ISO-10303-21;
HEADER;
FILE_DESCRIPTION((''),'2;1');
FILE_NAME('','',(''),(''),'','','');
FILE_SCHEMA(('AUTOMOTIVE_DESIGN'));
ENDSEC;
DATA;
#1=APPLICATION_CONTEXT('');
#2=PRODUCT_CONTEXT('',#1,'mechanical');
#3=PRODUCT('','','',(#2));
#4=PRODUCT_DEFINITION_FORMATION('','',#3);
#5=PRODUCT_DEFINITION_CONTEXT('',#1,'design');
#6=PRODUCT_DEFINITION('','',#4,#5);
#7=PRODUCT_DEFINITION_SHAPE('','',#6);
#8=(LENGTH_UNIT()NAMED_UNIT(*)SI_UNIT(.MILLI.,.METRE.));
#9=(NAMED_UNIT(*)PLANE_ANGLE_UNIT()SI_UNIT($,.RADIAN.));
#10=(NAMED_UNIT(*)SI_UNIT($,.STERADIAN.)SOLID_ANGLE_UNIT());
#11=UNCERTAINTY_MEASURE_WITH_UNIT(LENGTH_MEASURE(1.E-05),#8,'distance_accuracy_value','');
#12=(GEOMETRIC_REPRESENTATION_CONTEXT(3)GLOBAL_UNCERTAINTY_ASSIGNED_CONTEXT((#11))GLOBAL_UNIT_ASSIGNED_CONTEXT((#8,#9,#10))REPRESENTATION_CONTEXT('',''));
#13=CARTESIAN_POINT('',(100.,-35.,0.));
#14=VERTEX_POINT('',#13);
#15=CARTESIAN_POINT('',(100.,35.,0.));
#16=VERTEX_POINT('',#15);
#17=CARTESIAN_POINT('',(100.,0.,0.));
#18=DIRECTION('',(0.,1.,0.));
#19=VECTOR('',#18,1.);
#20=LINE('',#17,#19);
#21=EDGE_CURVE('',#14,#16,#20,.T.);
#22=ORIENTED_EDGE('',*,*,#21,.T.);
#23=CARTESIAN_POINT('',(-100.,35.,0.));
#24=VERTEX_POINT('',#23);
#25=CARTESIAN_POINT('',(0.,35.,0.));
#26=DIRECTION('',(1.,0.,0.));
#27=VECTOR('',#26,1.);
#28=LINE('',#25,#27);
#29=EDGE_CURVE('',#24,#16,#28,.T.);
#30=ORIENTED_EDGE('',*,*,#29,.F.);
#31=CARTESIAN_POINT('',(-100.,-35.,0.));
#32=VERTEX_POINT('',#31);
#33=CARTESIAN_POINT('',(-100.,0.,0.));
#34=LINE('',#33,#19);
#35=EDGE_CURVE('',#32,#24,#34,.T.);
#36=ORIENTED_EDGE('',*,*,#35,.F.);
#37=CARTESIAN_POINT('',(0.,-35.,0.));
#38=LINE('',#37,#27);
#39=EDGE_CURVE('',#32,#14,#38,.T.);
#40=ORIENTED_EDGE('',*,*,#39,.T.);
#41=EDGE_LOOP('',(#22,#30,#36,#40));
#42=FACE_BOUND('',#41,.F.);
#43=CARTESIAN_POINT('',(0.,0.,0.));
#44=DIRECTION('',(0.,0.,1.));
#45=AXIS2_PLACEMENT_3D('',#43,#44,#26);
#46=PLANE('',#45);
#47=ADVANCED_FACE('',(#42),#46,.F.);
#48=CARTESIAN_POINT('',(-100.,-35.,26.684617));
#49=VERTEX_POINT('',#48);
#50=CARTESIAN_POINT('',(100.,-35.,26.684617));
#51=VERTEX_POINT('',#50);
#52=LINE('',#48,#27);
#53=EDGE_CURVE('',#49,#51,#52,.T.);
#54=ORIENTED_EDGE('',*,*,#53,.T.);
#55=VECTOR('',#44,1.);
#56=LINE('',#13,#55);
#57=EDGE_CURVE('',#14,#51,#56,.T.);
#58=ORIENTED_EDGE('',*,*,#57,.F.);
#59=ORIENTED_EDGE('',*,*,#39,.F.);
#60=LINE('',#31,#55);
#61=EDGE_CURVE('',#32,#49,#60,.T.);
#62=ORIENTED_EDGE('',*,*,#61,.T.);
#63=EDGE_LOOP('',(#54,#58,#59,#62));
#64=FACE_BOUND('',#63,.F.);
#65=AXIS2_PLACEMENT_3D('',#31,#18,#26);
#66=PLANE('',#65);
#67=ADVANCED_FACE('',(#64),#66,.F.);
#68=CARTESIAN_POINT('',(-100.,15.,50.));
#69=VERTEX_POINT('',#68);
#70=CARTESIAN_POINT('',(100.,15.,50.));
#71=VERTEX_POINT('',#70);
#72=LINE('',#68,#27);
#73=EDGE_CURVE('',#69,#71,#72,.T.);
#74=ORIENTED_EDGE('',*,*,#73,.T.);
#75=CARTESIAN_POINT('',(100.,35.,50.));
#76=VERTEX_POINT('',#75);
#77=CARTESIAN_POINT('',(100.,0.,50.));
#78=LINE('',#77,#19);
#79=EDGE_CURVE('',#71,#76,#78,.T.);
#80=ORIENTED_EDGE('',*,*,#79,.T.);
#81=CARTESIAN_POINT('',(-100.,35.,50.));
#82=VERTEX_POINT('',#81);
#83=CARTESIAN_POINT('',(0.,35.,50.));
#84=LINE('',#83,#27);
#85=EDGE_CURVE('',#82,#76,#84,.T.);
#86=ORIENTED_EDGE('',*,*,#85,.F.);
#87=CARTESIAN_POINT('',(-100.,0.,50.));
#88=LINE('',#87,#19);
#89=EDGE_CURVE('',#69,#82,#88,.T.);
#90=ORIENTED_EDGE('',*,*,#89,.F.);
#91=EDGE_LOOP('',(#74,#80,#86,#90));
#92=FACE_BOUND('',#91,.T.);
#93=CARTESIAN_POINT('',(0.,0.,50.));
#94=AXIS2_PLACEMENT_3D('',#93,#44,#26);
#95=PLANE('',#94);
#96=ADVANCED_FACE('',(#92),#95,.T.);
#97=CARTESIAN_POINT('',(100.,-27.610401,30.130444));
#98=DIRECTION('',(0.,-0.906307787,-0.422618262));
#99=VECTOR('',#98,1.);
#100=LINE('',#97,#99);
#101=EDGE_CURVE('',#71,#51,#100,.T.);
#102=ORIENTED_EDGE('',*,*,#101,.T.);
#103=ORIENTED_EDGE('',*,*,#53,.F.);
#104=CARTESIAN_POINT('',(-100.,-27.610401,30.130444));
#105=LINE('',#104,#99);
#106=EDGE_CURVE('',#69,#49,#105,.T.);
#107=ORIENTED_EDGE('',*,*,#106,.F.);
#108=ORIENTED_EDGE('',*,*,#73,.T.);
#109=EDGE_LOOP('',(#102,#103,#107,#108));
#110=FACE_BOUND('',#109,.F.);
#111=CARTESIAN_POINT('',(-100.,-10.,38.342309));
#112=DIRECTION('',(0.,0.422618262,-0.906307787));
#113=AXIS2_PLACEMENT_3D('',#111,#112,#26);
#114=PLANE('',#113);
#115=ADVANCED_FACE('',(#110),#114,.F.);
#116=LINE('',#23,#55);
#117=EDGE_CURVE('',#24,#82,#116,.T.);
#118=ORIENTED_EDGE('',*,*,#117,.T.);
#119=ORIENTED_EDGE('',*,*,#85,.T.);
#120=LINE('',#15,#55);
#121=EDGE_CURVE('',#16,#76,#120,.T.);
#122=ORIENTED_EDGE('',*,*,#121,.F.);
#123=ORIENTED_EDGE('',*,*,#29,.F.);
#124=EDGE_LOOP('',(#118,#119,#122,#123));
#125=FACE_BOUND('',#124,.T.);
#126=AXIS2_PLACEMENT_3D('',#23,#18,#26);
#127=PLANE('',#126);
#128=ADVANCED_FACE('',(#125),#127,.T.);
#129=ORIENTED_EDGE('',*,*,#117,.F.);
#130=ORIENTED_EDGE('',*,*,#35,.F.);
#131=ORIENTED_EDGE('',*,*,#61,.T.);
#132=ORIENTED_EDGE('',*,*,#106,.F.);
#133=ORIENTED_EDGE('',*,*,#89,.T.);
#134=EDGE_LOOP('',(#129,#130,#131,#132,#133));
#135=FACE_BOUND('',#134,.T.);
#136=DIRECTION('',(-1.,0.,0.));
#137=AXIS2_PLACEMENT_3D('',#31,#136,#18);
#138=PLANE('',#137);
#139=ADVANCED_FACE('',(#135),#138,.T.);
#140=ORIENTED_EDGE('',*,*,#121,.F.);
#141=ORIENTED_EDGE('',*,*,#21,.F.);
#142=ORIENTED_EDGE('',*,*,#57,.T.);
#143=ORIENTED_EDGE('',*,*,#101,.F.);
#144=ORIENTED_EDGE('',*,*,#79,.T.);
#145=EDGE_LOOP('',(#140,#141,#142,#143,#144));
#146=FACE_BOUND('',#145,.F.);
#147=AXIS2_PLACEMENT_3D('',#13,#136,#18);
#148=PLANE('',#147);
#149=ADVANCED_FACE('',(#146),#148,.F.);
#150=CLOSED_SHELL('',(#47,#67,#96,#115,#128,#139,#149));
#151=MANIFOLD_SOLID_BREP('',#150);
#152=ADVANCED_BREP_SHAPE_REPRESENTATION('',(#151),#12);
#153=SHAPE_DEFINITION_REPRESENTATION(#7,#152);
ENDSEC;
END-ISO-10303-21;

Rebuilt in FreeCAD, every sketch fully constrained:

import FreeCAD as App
import Part
import Sketcher
from FreeCAD import Vector


def edges_at(feature, points):
    """Names of the edges that pass closest to the given points."""
    edges = feature.Shape.Edges
    near = lambda p: min(range(len(edges)), key=lambda i: edges[i].distToShape(Part.Vertex(*p))[0])
    return sorted({f"Edge{near(p) + 1}" for p in points})

doc = App.newDocument("Part")
body = doc.addObject("PartDesign::Body", "Body")

# Sketch on XY plane
sketch1 = body.newObject("Sketcher::SketchObject", "Sketch")
sketch1.AttachmentSupport = (doc.getObject("XY_Plane"), [""])
sketch1.MapMode = "FlatFace"
sketch1.addGeometry(Part.LineSegment(Vector(-100, 35, 0), Vector(-100, -35, 0)), False)
sketch1.addGeometry(Part.LineSegment(Vector(-100, -35, 0), Vector(100, -35, 0)), False)
sketch1.addGeometry(Part.LineSegment(Vector(100, -35, 0), Vector(100, 35, 0)), False)
sketch1.addGeometry(Part.LineSegment(Vector(100, 35, 0), Vector(-100, 35, 0)), False)
sketch1.addConstraint(Sketcher.Constraint("Coincident", 0, 2, 1, 1))
sketch1.addConstraint(Sketcher.Constraint("Coincident", 1, 2, 2, 1))
sketch1.addConstraint(Sketcher.Constraint("Coincident", 2, 2, 3, 1))
sketch1.addConstraint(Sketcher.Constraint("Coincident", 3, 2, 0, 1))
sketch1.addConstraint(Sketcher.Constraint("Vertical", 0))
sketch1.addConstraint(Sketcher.Constraint("Horizontal", 1))
sketch1.addConstraint(Sketcher.Constraint("Vertical", 2))
sketch1.addConstraint(Sketcher.Constraint("Horizontal", 3))
sketch1.addConstraint(Sketcher.Constraint("Symmetric", 0, 2, 2, 2, -1, 1))
sketch1.addConstraint(Sketcher.Constraint("DistanceX", 1, 1, 1, 2, 200.0))
sketch1.addConstraint(Sketcher.Constraint("DistanceY", 0, 2, 0, 1, 70.0))
pad1 = body.newObject("PartDesign::Pad", "Pad")
pad1.Profile = sketch1
pad1.Length = 50
doc.recompute()

chamfer = body.newObject("PartDesign::Chamfer", "Chamfer")
chamfer.Base = (pad1, edges_at(pad1, [(0, -35, 50)]))
chamfer.ChamferType = "Two distances"
chamfer.Size = 50
chamfer.Size2 = 23.315383
chamfer.FlipDirection = True

doc.recompute()
